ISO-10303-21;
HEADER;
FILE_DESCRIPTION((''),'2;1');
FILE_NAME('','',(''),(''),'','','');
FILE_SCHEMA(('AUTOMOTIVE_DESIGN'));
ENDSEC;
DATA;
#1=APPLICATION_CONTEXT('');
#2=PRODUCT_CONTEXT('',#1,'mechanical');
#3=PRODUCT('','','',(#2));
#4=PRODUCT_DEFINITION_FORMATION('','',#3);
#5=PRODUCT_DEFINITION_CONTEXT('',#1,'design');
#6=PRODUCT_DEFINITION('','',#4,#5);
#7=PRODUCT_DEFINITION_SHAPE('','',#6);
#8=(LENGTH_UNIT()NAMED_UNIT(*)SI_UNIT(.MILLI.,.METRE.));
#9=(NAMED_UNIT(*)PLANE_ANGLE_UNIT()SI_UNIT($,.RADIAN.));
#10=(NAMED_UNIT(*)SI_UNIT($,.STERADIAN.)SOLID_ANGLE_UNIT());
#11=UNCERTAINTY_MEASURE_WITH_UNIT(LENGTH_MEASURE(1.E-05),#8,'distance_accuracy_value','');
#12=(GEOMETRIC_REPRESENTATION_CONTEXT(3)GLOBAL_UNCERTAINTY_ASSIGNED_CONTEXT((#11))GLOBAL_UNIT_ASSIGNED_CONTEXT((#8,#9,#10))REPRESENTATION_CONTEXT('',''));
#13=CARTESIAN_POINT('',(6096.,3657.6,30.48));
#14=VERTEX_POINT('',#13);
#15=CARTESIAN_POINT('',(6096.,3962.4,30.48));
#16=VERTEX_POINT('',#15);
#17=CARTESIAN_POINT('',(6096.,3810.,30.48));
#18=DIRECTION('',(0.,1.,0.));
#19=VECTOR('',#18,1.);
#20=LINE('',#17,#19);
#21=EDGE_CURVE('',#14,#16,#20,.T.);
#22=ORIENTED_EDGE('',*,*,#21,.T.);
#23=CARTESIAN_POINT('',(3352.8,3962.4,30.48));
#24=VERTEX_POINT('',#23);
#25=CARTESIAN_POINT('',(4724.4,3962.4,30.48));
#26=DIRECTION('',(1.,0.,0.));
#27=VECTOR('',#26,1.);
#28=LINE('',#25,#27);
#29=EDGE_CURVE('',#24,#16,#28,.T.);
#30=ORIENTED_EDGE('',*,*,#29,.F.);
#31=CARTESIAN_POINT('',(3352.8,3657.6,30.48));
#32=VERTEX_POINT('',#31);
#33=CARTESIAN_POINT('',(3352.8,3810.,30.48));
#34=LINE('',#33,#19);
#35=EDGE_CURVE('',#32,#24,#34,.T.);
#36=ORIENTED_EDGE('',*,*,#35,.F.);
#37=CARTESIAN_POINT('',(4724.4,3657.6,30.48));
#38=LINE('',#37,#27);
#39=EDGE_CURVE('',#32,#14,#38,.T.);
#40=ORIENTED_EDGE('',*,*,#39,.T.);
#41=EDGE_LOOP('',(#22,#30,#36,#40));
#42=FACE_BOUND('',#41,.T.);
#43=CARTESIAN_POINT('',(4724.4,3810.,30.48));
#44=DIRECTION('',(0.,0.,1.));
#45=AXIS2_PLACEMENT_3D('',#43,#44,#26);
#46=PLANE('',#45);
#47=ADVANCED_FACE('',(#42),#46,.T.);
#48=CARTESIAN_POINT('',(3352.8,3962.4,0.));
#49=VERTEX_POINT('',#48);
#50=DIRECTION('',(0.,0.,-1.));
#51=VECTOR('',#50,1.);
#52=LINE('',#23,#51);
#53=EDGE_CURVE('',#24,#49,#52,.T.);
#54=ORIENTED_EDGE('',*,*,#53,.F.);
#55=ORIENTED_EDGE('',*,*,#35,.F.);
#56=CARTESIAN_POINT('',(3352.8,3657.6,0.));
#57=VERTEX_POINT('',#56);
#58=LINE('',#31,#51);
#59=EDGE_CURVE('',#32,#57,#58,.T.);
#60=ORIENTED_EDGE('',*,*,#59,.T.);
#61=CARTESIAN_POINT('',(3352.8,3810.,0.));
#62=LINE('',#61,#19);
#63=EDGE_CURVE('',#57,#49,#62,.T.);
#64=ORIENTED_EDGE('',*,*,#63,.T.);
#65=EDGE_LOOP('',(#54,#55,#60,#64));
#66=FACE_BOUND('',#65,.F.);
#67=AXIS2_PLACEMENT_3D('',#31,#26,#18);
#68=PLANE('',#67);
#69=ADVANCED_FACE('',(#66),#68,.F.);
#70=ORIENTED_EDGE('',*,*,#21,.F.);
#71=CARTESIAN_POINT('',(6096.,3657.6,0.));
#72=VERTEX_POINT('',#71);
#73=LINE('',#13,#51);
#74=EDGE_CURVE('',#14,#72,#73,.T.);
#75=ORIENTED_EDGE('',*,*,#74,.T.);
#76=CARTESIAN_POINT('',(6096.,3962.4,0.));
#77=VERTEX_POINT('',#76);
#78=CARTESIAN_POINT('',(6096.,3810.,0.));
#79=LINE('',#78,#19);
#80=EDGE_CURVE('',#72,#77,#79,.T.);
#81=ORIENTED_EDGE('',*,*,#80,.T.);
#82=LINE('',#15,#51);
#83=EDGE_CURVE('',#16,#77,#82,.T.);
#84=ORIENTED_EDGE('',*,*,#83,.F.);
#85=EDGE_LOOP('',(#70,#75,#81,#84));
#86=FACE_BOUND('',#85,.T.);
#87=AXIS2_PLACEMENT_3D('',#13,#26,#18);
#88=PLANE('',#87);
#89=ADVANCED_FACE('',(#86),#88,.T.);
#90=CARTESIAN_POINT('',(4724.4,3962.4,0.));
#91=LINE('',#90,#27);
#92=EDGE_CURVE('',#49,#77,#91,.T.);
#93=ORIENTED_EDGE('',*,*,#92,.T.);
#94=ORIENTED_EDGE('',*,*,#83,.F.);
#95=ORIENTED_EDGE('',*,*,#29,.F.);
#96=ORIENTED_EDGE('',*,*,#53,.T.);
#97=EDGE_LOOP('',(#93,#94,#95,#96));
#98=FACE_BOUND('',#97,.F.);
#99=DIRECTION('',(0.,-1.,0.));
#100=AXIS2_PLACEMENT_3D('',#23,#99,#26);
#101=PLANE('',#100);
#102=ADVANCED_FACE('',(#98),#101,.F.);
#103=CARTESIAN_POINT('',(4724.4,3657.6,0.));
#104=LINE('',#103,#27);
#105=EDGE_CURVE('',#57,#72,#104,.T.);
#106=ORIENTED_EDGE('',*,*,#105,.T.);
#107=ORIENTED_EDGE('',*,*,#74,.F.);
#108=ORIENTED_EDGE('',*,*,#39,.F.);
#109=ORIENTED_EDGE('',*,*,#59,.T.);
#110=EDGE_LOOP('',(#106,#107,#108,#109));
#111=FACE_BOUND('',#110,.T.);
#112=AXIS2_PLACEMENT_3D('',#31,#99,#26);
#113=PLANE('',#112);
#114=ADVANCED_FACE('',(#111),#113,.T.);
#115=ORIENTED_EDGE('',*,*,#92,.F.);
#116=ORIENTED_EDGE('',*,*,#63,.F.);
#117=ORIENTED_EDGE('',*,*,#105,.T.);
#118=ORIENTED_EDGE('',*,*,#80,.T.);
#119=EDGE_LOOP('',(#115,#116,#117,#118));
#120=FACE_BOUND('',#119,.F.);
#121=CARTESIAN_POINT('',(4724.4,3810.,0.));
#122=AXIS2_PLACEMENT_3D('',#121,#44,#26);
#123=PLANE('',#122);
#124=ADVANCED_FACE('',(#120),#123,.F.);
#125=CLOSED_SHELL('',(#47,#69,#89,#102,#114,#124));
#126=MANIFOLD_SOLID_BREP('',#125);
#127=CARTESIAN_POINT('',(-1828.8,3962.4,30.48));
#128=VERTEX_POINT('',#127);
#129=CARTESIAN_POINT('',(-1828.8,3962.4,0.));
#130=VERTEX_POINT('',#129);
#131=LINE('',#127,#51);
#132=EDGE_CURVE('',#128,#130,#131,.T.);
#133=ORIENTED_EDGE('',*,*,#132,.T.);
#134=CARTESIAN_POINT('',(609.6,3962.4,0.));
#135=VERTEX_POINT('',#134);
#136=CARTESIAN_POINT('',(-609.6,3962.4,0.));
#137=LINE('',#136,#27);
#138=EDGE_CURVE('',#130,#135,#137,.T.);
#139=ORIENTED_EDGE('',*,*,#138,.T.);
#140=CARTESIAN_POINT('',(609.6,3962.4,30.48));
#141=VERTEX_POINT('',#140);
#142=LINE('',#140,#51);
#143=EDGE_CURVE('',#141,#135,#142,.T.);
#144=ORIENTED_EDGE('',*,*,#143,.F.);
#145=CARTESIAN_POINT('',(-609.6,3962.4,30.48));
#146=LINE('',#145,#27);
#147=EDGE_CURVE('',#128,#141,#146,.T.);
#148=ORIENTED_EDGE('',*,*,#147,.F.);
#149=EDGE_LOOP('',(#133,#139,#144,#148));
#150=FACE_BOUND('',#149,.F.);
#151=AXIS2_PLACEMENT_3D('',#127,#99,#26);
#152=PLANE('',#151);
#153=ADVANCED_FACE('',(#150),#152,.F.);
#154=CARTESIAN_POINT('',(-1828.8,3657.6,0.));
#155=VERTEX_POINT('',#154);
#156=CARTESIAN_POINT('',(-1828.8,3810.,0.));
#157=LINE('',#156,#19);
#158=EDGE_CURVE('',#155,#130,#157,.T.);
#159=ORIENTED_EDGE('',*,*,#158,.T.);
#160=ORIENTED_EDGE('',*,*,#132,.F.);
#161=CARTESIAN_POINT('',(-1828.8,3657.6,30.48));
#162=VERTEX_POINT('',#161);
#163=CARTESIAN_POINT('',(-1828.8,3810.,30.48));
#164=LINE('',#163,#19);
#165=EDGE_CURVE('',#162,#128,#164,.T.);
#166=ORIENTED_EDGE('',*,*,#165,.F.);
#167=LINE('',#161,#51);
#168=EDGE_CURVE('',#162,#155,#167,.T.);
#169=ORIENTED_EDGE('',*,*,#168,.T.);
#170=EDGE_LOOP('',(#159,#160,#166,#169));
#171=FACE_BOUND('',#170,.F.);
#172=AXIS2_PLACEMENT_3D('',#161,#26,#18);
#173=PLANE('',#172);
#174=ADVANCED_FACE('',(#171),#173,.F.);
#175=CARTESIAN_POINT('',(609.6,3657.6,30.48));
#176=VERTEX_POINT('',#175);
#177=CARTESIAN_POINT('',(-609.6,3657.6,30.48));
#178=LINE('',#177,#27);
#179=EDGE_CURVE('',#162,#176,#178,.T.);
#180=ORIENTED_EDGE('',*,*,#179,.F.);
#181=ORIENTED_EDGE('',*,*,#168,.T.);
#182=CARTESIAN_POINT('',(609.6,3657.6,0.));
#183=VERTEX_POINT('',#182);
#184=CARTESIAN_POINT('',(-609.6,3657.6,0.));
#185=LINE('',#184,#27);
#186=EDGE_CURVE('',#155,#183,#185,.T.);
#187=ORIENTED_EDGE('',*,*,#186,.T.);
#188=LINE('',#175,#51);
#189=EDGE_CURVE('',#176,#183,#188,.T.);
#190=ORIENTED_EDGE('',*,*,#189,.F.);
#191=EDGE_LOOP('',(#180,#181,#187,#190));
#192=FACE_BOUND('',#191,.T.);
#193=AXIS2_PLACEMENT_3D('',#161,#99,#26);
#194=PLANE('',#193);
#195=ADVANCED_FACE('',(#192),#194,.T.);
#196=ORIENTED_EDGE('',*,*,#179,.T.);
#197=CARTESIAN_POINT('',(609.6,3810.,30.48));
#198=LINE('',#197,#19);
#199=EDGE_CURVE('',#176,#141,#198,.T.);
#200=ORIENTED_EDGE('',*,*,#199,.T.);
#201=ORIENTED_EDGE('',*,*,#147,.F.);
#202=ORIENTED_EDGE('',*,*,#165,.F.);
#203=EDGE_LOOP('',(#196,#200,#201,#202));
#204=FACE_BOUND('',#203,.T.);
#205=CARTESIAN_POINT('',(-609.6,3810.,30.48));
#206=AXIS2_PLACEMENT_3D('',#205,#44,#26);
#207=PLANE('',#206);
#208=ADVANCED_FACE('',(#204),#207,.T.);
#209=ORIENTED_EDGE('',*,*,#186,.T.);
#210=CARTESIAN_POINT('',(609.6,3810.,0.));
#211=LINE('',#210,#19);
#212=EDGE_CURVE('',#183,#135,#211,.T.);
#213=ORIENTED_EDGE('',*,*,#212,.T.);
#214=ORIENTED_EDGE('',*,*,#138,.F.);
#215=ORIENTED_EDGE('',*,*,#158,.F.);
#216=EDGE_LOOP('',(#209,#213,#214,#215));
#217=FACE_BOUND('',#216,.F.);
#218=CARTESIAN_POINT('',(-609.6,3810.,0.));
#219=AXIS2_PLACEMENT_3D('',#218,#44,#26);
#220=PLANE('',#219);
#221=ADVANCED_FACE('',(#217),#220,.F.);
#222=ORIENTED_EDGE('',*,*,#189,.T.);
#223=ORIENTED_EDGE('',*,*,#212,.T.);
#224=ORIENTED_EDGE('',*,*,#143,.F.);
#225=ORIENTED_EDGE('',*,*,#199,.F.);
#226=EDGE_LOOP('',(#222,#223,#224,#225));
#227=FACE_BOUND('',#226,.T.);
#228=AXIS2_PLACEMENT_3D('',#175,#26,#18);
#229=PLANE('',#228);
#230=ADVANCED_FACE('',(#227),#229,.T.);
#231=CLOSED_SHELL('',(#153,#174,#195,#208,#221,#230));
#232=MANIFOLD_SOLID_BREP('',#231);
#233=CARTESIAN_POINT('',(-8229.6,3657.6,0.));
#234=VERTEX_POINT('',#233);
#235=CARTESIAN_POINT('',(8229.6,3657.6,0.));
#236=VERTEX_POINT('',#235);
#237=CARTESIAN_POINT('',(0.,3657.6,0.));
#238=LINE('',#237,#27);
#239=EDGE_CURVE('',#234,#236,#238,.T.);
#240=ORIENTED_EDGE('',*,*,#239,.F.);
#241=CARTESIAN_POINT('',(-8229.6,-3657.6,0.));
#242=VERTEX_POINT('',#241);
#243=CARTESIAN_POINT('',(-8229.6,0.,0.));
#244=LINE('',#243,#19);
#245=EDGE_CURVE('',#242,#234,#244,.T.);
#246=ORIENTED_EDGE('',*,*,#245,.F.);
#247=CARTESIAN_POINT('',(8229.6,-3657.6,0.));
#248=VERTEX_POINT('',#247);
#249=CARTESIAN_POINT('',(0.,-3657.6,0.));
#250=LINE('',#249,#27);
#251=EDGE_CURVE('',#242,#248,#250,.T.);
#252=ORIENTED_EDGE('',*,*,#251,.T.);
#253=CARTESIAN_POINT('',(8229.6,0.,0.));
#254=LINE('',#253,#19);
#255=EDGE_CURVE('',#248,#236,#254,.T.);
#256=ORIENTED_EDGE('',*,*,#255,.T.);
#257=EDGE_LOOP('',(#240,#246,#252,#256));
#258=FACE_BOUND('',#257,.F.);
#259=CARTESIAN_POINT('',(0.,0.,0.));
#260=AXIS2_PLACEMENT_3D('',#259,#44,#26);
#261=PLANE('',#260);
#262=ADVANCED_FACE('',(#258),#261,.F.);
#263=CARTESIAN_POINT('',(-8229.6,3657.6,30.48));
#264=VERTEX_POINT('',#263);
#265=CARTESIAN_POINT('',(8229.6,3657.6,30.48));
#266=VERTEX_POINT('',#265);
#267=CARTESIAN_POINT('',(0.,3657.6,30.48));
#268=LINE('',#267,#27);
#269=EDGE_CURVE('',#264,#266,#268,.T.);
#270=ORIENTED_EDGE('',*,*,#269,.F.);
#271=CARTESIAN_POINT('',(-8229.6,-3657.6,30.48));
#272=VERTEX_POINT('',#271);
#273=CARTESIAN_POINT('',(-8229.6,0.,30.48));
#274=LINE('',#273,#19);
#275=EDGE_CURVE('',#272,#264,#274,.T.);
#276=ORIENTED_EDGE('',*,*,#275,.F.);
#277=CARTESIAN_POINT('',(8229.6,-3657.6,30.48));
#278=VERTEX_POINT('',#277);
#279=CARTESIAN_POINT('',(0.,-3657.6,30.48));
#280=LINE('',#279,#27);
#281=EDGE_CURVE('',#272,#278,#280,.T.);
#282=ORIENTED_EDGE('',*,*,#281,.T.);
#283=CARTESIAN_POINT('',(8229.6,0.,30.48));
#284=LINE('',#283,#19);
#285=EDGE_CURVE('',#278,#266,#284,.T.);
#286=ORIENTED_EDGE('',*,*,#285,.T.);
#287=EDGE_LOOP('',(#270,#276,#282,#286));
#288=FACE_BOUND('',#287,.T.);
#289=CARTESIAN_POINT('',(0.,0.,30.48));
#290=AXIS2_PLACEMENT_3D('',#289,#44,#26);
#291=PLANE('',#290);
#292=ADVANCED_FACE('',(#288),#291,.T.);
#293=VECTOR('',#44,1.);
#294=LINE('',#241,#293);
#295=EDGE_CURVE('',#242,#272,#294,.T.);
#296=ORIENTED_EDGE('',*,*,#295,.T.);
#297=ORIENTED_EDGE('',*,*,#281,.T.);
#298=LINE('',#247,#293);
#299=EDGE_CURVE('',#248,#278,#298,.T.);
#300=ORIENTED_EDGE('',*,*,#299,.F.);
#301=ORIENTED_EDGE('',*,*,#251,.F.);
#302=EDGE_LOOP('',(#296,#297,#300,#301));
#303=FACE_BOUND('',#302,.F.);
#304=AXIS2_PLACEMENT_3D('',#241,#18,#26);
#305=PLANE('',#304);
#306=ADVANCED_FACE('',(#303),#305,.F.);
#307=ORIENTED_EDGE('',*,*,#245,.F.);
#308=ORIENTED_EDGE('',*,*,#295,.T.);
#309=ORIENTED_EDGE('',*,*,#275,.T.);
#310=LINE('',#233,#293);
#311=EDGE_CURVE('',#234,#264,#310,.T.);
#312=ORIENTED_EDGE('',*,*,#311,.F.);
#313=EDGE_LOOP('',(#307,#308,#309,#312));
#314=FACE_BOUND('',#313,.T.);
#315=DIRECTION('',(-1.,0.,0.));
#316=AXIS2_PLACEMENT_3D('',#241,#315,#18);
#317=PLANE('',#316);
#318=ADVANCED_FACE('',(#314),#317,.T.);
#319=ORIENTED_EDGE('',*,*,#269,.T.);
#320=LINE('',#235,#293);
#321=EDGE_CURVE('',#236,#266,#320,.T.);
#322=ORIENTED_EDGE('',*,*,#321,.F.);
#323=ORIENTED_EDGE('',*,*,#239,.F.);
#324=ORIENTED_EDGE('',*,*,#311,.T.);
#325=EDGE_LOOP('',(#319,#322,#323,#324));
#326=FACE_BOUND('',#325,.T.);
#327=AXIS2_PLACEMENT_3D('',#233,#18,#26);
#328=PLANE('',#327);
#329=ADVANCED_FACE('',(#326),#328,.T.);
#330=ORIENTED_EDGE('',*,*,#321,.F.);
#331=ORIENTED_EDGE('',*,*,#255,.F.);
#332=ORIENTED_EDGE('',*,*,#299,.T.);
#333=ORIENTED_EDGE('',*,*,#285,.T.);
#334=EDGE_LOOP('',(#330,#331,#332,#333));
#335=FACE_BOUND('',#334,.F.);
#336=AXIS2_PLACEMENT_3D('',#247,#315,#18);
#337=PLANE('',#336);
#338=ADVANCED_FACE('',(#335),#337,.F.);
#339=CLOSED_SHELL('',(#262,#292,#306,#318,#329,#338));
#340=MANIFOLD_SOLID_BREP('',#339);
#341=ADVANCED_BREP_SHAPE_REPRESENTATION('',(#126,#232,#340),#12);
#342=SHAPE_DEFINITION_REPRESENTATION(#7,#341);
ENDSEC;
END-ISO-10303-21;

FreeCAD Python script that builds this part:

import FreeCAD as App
import Part
import Sketcher
Q = App.Units.Quantity

doc = App.newDocument("Part")
body = doc.addObject("PartDesign::Body", "Body")

sketch1 = doc.addObject("Sketcher::SketchObject", "Sketch")
body.addObject(sketch1)
sketch1.AttachmentSupport = (doc.XY_Plane, [""])
sketch1.MapMode = "FlatFace"
sketch1.addGeometry([
    Part.LineSegment(App.Vector(-8229.6, 3657.6, 0), App.Vector(-8229.6, -3657.6, 0)),
    Part.LineSegment(App.Vector(-8229.6, -3657.6, 0), App.Vector(8229.6, -3657.6, 0)),
    Part.LineSegment(App.Vector(8229.6, -3657.6, 0), App.Vector(8229.6, 3657.6, 0)),
    Part.LineSegment(App.Vector(8229.6, 3657.6, 0), App.Vector(-8229.6, 3657.6, 0)),
], False)
sketch1.addConstraint([
    Sketcher.Constraint("Coincident", 0, 2, 1, 1),
    Sketcher.Constraint("Coincident", 1, 2, 2, 1),
    Sketcher.Constraint("Coincident", 2, 2, 3, 1),
    Sketcher.Constraint("Coincident", 3, 2, 0, 1),
    Sketcher.Constraint("Vertical", 0),
    Sketcher.Constraint("Horizontal", 1),
    Sketcher.Constraint("Vertical", 2),
    Sketcher.Constraint("Horizontal", 3),
    Sketcher.Constraint("Symmetric", 0, 2, 2, 2, -1, 1),
    Sketcher.Constraint("DistanceX", 1, 1, 1, 2, Q("648 in")),
    Sketcher.Constraint("DistanceY", 0, 2, 0, 1, Q("288 in")),
])
pad1 = doc.addObject("PartDesign::Pad", "Pad")
body.addObject(pad1)
pad1.Profile = sketch1
pad1.Length = Q("1.2 in")
body2 = doc.addObject("PartDesign::Body", "Body001")
body2.AllowCompound = True

sketch2 = doc.addObject("Sketcher::SketchObject", "Sketch001")
body2.addObject(sketch2)
sketch2.AttachmentSupport = (doc.getObject("XY_Plane001"), [""])
sketch2.MapMode = "FlatFace"
sketch2.AttachmentOffset = App.Placement(App.Vector(0, 0, 1.2 * 25.4), App.Rotation())
sketch2.addGeometry([
    Part.LineSegment(App.Vector(-1828.8, 3962.4, 0), App.Vector(-1828.8, 3657.6, 0)),
    Part.LineSegment(App.Vector(-1828.8, 3657.6, 0), App.Vector(609.6, 3657.6, 0)),
    Part.LineSegment(App.Vector(609.6, 3657.6, 0), App.Vector(609.6, 3962.4, 0)),
    Part.LineSegment(App.Vector(609.6, 3962.4, 0), App.Vector(-1828.8, 3962.4, 0)),
    Part.LineSegment(App.Vector(3352.8, 3962.4, 0), App.Vector(3352.8, 3657.6, 0)),
    Part.LineSegment(App.Vector(3352.8, 3657.6, 0), App.Vector(6096, 3657.6, 0)),
    Part.LineSegment(App.Vector(6096, 3657.6, 0), App.Vector(6096, 3962.4, 0)),
    Part.LineSegment(App.Vector(6096, 3962.4, 0), App.Vector(3352.8, 3962.4, 0)),
], False)
sketch2.addConstraint([
    Sketcher.Constraint("Coincident", 0, 2, 1, 1),
    Sketcher.Constraint("Coincident", 1, 2, 2, 1),
    Sketcher.Constraint("Coincident", 2, 2, 3, 1),
    Sketcher.Constraint("Coincident", 3, 2, 0, 1),
    Sketcher.Constraint("Coincident", 4, 2, 5, 1),
    Sketcher.Constraint("Coincident", 5, 2, 6, 1),
    Sketcher.Constraint("Coincident", 6, 2, 7, 1),
    Sketcher.Constraint("Coincident", 7, 2, 4, 1),
    Sketcher.Constraint("Vertical", 0),
    Sketcher.Constraint("Horizontal", 1),
    Sketcher.Constraint("Vertical", 2),
    Sketcher.Constraint("Horizontal", 3),
    Sketcher.Constraint("Vertical", 4),
    Sketcher.Constraint("Horizontal", 5),
    Sketcher.Constraint("Vertical", 6),
    Sketcher.Constraint("Horizontal", 7),
    Sketcher.Constraint("Horizontal", 1, 2, 4, 2),
    Sketcher.Constraint("Horizontal", 3, 2, 6, 2),
    Sketcher.Constraint("DistanceX", 1, 1, 1, 2, Q("96 in")),
    Sketcher.Constraint("DistanceX", 5, 1, 5, 2, Q("108 in")),
    Sketcher.Constraint("DistanceY", 0, 2, 0, 1, Q("12 in")),
    Sketcher.Constraint("DistanceX", 0, 2, -1, 1, Q("72 in")),
    Sketcher.Constraint("DistanceY", -1, 1, 0, 2, Q("144 in")),
    Sketcher.Constraint("DistanceX", -1, 1, 4, 2, Q("132 in")),
])
pad2 = doc.addObject("PartDesign::Pad", "Pad001")
body2.addObject(pad2)
pad2.Profile = sketch2
pad2.Length = Q("1.2 in")
pad2.Reversed = True

doc.recompute()
